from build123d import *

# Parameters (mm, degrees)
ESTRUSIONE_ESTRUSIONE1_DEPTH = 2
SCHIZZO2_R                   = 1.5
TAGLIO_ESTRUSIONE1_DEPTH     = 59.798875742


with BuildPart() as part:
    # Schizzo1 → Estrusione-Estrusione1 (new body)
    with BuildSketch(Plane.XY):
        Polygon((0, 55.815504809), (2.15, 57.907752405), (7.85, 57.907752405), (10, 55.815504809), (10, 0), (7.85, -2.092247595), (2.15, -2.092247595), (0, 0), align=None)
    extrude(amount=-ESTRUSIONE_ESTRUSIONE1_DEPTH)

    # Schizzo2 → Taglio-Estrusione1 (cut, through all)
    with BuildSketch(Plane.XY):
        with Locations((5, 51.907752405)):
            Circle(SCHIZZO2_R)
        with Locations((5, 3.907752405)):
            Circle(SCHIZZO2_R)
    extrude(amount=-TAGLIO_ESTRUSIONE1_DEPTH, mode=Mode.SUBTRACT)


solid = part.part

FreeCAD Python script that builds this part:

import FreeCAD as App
import Part
import Sketcher

V = App.Vector
Q = App.Units.Quantity


def add_polygon(sketch, points):
    """Adds a closed chain of lines whose ends are joined by coincident constraints."""
    first, n = sketch.GeometryCount, len(points)
    for a, b in zip(points, points[1:] + points[:1]):
        sketch.addGeometry(Part.LineSegment(App.Vector(*a, 0), App.Vector(*b, 0)), False)
    for i in range(n):
        sketch.addConstraint(Sketcher.Constraint("Coincident", first + i, 2, first + (i + 1) % n, 1))

doc = App.newDocument("Part")
body = doc.addObject("PartDesign::Body", "Body")

sketch1 = doc.addObject("Sketcher::SketchObject", "Sketch")
body.addObject(sketch1)
sketch1.AttachmentSupport = (doc.XY_Plane, [""])
sketch1.MapMode = "FlatFace"
add_polygon(sketch1, [(2.1, 57.9), (0, 55.8), (0, 0), (2.1, -2.1), (7.8, -2.1), (10, 0), (10, 55.8), (7.8, 57.9)])
sketch1.addConstraint([
    Sketcher.Constraint("Vertical", 1),
    Sketcher.Constraint("Horizontal", 3),
    Sketcher.Constraint("Vertical", 5),
    Sketcher.Constraint("Horizontal", 7),
    Sketcher.Constraint("Coincident", 1, 2, -1, 1),
    Sketcher.Constraint("PointOnObject", 4, 2, -1),
    Sketcher.Constraint("Parallel", 0, 4),
    Sketcher.Constraint("Parallel", 2, 6),
    Sketcher.Constraint("Horizontal", 0, 2, 5, 2),
    Sketcher.Constraint("Vertical", 3, 2, 6, 2),
    Sketcher.Constraint("Vertical", 2, 2, 7, 2),
    Sketcher.Constraint("Distance", 0, Q("3 mm")),
    Sketcher.Constraint("DistanceX", 3, 1, 3, 2, Q("5.7 mm")),
    Sketcher.Constraint("DistanceX", -1, 1, 4, 2, Q("10 mm")),
    Sketcher.Constraint("DistanceY", 3, 2, 6, 2, Q("60 mm")),
])
pad1 = doc.addObject("PartDesign::Pad", "Pad")
body.addObject(pad1)
pad1.Profile = sketch1
pad1.Length = 2
pad1.Reversed = True

sketch2 = doc.addObject("Sketcher::SketchObject", "Sketch001")
body.addObject(sketch2)
sketch2.AttachmentSupport = (doc.XY_Plane, [""])
sketch2.MapMode = "FlatFace"
sketch2.addGeometry([
    Part.Circle(V(5, 51.9, 0), V(0, 0, 1), 1.5),
    Part.Circle(V(5, 3.9, 0), V(0, 0, 1), 1.5),
], False)
sketch2.addConstraint([
    Sketcher.Constraint("Equal", 0, 1),
    Sketcher.Constraint("Vertical", 0, 3, 1, 3),
    Sketcher.Constraint("Diameter", 0, Q("3 mm")),
    Sketcher.Constraint("DistanceX", -1, 1, 0, 3, Q("5 mm")),
    Sketcher.Constraint("DistanceY", 1, 3, 0, 3, Q("48 mm")),
    Sketcher.Constraint("DistanceY", -1, 1, 0, 3, Q("51.907752 mm")),
])
pocket1 = doc.addObject("PartDesign::Pocket", "Pocket")
body.addObject(pocket1)
pocket1.Profile = sketch2
pocket1.Type = "ThroughAll"

doc.recompute()
